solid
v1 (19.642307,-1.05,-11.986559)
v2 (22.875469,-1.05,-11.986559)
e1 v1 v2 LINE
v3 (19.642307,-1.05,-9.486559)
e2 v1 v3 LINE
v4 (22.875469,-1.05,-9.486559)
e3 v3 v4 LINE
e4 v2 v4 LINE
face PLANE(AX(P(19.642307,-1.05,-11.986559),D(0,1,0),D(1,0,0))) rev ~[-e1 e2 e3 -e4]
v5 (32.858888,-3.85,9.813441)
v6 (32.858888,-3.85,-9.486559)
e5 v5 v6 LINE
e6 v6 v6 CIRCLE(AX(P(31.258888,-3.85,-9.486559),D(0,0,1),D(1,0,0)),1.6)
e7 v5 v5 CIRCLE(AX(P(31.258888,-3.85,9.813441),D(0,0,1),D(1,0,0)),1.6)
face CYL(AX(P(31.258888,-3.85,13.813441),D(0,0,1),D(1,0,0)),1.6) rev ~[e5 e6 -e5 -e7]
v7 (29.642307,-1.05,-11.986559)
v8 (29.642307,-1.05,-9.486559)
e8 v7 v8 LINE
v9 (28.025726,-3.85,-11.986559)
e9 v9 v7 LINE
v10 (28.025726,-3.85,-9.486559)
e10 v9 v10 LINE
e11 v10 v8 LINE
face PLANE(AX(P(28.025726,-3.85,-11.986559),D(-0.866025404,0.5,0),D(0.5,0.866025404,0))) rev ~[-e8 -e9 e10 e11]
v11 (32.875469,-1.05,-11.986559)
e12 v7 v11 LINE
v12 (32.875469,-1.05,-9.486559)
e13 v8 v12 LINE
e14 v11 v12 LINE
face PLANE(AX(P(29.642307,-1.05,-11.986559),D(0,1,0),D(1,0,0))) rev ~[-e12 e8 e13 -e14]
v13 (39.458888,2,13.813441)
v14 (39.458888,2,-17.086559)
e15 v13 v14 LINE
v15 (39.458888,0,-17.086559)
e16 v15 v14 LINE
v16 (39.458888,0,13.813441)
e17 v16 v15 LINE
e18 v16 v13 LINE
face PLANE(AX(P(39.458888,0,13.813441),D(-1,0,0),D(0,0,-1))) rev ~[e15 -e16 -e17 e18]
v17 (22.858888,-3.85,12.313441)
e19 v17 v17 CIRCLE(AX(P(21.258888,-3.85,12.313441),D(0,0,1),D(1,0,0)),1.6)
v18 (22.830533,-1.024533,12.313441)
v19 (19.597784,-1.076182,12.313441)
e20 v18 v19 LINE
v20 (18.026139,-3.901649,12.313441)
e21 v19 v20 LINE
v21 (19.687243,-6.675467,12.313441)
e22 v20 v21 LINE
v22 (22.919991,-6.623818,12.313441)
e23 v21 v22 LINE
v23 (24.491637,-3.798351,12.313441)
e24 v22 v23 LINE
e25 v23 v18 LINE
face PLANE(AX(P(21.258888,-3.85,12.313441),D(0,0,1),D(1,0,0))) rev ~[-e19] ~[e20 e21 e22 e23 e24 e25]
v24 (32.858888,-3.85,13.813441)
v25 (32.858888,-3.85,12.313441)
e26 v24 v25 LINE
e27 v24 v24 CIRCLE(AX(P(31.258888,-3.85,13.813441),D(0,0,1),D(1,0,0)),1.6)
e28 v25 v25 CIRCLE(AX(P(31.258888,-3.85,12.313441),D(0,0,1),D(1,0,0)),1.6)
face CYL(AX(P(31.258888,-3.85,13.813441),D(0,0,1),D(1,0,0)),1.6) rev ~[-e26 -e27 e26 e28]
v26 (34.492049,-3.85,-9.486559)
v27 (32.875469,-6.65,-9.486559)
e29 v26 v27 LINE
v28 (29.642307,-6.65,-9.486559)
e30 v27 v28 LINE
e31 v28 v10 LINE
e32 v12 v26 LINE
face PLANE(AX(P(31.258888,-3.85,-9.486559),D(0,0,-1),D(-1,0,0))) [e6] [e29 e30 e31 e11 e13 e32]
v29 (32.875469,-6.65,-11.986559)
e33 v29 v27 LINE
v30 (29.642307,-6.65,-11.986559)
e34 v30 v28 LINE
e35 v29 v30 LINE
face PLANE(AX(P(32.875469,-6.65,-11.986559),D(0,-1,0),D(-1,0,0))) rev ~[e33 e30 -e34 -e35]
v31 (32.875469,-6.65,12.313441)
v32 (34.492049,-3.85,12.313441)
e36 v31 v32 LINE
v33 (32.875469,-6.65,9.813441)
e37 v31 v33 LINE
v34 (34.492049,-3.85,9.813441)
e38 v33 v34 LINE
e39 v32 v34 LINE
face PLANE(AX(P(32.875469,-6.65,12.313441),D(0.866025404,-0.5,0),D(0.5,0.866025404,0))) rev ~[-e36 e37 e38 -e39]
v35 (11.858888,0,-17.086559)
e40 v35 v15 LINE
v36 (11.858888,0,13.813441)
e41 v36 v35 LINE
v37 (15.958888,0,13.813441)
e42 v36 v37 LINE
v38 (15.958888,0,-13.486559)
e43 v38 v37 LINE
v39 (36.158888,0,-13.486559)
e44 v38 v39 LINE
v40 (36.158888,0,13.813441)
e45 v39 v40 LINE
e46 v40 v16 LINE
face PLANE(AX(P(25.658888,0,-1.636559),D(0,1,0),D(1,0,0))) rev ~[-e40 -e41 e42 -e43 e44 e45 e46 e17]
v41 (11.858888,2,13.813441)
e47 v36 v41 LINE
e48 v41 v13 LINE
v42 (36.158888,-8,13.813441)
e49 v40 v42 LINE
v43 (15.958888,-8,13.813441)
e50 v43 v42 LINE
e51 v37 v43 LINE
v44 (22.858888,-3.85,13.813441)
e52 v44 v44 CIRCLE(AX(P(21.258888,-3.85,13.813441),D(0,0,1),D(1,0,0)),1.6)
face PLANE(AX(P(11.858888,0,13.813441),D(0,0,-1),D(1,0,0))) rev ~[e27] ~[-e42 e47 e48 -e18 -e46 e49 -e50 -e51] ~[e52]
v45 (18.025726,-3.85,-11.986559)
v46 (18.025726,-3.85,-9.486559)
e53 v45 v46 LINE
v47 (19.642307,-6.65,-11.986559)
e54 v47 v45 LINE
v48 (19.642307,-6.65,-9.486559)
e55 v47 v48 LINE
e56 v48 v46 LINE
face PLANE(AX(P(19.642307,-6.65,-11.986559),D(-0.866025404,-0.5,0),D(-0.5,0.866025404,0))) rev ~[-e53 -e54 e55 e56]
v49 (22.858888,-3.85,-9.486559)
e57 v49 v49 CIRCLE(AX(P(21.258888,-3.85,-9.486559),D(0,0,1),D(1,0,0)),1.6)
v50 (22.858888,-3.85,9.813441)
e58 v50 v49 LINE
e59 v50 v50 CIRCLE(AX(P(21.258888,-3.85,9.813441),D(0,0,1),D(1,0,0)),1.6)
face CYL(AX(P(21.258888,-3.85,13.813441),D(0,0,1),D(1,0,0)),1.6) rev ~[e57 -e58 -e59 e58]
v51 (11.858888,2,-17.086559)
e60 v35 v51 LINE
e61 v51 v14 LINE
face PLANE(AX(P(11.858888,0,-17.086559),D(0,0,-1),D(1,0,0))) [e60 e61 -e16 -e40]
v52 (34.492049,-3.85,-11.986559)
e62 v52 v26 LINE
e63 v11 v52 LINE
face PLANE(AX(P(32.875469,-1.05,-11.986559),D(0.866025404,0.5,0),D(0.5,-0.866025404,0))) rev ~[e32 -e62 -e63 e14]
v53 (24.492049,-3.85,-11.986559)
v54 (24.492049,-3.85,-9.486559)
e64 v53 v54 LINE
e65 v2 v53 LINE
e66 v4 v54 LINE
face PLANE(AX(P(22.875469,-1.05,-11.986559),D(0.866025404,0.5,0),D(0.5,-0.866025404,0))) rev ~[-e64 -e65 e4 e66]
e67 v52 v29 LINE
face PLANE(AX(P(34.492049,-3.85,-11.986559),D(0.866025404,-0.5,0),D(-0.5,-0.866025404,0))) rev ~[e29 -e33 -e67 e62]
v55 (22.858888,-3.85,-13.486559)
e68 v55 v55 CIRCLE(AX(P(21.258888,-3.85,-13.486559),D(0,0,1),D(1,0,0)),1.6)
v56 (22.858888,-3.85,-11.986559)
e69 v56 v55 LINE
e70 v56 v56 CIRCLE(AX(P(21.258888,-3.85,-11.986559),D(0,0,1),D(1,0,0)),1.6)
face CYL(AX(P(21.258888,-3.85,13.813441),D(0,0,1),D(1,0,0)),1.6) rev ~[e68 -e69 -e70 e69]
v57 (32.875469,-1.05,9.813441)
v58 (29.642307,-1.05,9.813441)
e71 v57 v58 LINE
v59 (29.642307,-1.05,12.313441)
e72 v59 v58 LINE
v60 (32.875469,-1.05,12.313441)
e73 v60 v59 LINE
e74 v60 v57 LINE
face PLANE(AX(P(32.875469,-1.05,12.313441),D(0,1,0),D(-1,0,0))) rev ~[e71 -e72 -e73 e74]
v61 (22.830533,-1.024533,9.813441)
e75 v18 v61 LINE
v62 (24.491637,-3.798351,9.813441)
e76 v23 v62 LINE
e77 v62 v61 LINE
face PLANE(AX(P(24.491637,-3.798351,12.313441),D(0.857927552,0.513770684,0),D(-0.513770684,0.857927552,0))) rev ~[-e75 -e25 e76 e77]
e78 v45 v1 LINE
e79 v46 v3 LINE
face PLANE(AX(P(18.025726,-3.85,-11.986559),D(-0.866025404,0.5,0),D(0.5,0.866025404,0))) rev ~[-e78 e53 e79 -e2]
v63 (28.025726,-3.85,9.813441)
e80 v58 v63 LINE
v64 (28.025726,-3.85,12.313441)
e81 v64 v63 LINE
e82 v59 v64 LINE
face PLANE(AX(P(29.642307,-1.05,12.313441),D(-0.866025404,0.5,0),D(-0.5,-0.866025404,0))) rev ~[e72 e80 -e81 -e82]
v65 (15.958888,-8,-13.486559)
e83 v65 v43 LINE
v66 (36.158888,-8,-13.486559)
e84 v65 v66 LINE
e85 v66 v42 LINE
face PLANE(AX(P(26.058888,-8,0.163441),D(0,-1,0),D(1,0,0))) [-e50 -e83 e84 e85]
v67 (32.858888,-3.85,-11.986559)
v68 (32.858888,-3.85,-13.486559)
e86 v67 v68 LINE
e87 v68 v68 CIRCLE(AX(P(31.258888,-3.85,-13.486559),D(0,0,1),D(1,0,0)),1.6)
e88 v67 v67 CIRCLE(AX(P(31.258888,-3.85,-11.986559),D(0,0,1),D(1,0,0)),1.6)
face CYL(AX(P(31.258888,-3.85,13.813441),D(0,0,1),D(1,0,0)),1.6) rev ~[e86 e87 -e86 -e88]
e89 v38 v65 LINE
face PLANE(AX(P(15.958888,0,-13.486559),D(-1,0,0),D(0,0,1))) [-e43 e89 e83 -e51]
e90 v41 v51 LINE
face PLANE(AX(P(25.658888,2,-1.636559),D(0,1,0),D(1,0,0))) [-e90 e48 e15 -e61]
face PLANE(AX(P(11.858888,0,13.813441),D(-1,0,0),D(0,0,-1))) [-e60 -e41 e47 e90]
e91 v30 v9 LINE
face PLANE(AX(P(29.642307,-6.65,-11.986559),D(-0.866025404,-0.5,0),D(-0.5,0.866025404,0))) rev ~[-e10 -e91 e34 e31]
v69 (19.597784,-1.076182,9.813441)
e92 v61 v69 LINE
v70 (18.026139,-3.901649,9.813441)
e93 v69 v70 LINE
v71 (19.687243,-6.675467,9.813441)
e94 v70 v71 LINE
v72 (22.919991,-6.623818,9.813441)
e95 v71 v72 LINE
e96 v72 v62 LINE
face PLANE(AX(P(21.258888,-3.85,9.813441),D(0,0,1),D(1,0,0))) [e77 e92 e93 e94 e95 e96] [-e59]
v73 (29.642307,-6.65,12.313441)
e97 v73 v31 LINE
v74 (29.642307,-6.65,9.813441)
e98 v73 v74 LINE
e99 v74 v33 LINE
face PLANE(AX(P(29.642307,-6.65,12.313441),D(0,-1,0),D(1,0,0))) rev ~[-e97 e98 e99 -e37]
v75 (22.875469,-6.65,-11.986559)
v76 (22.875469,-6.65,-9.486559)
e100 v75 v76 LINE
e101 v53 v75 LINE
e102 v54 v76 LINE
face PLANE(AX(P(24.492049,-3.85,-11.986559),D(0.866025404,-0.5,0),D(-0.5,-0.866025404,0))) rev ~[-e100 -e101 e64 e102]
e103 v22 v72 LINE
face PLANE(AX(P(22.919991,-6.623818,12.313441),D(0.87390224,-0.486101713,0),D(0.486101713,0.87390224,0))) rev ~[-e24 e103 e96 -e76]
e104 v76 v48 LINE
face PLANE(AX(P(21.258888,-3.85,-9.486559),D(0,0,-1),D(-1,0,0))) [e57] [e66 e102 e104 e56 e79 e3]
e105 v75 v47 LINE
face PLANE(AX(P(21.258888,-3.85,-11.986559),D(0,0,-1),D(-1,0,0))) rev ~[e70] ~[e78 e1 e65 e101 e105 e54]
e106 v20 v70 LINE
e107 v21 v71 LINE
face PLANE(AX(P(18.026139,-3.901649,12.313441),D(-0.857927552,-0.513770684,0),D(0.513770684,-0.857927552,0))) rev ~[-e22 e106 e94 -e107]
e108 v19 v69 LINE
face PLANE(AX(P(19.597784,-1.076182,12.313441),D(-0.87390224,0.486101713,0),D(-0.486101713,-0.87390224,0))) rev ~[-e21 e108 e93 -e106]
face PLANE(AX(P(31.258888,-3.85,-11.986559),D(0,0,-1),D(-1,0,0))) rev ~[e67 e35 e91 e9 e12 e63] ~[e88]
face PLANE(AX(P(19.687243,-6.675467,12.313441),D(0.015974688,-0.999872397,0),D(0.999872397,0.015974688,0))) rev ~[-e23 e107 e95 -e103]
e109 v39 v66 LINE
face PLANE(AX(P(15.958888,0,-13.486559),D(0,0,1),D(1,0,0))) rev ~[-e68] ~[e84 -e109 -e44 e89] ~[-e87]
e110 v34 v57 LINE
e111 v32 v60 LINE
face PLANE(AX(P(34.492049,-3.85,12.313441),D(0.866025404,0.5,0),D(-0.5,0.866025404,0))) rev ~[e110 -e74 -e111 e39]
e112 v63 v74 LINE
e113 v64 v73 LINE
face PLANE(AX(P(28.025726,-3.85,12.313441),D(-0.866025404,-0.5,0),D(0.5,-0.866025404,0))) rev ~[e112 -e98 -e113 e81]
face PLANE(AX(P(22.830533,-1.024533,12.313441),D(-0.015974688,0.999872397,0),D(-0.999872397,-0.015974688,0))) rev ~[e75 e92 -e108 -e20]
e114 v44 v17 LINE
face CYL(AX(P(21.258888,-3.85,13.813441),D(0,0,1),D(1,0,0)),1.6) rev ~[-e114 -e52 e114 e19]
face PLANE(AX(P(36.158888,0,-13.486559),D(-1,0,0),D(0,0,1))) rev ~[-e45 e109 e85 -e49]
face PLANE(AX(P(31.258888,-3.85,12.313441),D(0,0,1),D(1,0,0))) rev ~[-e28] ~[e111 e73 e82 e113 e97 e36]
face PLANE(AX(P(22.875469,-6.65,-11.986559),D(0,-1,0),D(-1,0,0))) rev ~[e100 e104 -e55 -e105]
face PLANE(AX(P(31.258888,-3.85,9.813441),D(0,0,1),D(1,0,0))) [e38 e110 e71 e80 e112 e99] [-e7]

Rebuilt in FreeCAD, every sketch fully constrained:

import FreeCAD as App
import Part
import Sketcher
from FreeCAD import Vector
Q = App.Units.Quantity


def add_polygon(sketch, points):
    """Adds a closed chain of lines whose ends are joined by coincident constraints."""
    first, n = sketch.GeometryCount, len(points)
    for a, b in zip(points, points[1:] + points[:1]):
        sketch.addGeometry(Part.LineSegment(App.Vector(*a, 0), App.Vector(*b, 0)), False)
    for i in range(n):
        sketch.addConstraint(Sketcher.Constraint("Coincident", first + i, 2, first + (i + 1) % n, 1))

doc = App.newDocument("Part")
body = doc.addObject("PartDesign::Body", "Body")

sketch1 = body.newObject("Sketcher::SketchObject", "Sketch")
sketch1.AttachmentSupport = (doc.getObject("XZ_Plane"), [""])
sketch1.MapMode = "FlatFace"
add_polygon(sketch1, [(11.858888, -17.086559), (11.858888, 13.813441), (39.458888, 13.813441), (39.458888, -17.086559)])
sketch1.addConstraint([
    Sketcher.Constraint("Vertical", 0),
    Sketcher.Constraint("Horizontal", 1),
    Sketcher.Constraint("Vertical", 2),
    Sketcher.Constraint("Horizontal", 3),
    Sketcher.Constraint("DistanceX", 1, 1, 1, 2, Q("27.6 mm")),
    Sketcher.Constraint("DistanceY", 0, 1, 0, 2, Q("30.9 mm")),
    Sketcher.Constraint("DistanceY", -1, 1, 0, 2, Q("13.813441 mm")),
    Sketcher.Constraint("DistanceX", -1, 1, 0, 2, Q("11.858888 mm")),
])
pad1 = body.newObject("PartDesign::Pad", "Pad")
pad1.Profile = sketch1
pad1.Length = 2
pad1.Reversed = True

sketch2 = body.newObject("Sketcher::SketchObject", "Sketch001")
sketch2.AttachmentSupport = (doc.getObject("XZ_Plane"), [""])
sketch2.MapMode = "FlatFace"
add_polygon(sketch2, [(15.958888, 13.813441), (15.958888, -13.486559), (36.158888, -13.486559), (36.158888, 13.813441)])
sketch2.addConstraint([
    Sketcher.Constraint("Vertical", 0),
    Sketcher.Constraint("Horizontal", 1),
    Sketcher.Constraint("Vertical", 2),
    Sketcher.Constraint("Horizontal", 3),
    Sketcher.Constraint("DistanceX", 1, 1, 1, 2, Q("20.2 mm")),
    Sketcher.Constraint("DistanceY", 0, 2, 0, 1, Q("27.3 mm")),
    Sketcher.Constraint("DistanceY", 0, 2, -1, 1, Q("13.486559 mm")),
    Sketcher.Constraint("DistanceX", -1, 1, 0, 2, Q("15.958888 mm")),
])
pad2 = body.newObject("PartDesign::Pad", "Pad001")
pad2.Profile = sketch2
pad2.Length = 8

sketch3 = body.newObject("Sketcher::SketchObject", "Sketch002")
sketch3.AttachmentSupport = (doc.getObject("XY_Plane"), [""])
sketch3.MapMode = "FlatFace"
sketch3.AttachmentOffset = App.Placement(Vector(0, 0, 13.813441), App.Rotation())
sketch3.addGeometry([
    Part.Circle(Vector(21.258888, -3.85, 0), Vector(0, 0, 1), 1.6),
    Part.Circle(Vector(31.258888, -3.85, 0), Vector(0, 0, 1), 1.6),
], False)
sketch3.addConstraint([
    Sketcher.Constraint("Equal", 0, 1),
    Sketcher.Constraint("Horizontal", 0, 3, 1, 3),
    Sketcher.Constraint("Diameter", 0, Q("3.2 mm")),
    Sketcher.Constraint("DistanceX", 0, 3, 1, 3, Q("10 mm")),
    Sketcher.Constraint("DistanceY", 0, 3, -1, 1, Q("3.85 mm")),
    Sketcher.Constraint("DistanceX", -1, 1, 0, 3, Q("21.258888 mm")),
])
pocket1 = body.newObject("PartDesign::Pocket", "Pocket")
pocket1.Profile = sketch3
pocket1.Length = 32

sketch4 = body.newObject("Sketcher::SketchObject", "Sketch003")
sketch4.AttachmentSupport = (doc.getObject("XY_Plane"), [""])
sketch4.MapMode = "FlatFace"
sketch4.AttachmentOffset = App.Placement(Vector(0, 0, 12.313441), App.Rotation())
add_polygon(sketch4, [(32.875469, -6.65), (34.492049, -3.85), (32.875469, -1.05), (29.642307, -1.05), (28.025726, -3.85), (29.642307, -6.65)])
add_polygon(sketch4, [(22.919991, -6.623818), (24.491637, -3.798351), (22.830533, -1.024533), (19.597784, -1.076182), (18.026139, -3.901649), (19.687243, -6.675467)])
sketch4.addConstraint([
    Sketcher.Constraint("Horizontal", 2),
    Sketcher.Constraint("Horizontal", 5),
    Sketcher.Constraint("Parallel", 0, 3),
    Sketcher.Constraint("Parallel", 1, 4),
    Sketcher.Constraint("Parallel", 6, 9),
    Sketcher.Constraint("Parallel", 7, 10),
    Sketcher.Constraint("Parallel", 8, 11),
    Sketcher.Constraint("Horizontal", 0, 2, 3, 2),
    Sketcher.Constraint("Vertical", 2, 2, 4, 2),
    Sketcher.Constraint("Vertical", 1, 2, 5, 2),
    Sketcher.Constraint("Equal", 4, 6),
    Sketcher.Constraint("Equal", 6, 7),
    Sketcher.Constraint("Equal", 7, 8),
    Sketcher.Constraint("Equal", 8, 9),
    Sketcher.Constraint("Angle", 0, Q("60 deg")),
    Sketcher.Constraint("DistanceY", 0, 2, 1, 2, Q("2.8 mm")),
    Sketcher.Constraint("DistanceY", 0, 2, -1, 1, Q("3.85 mm")),
    Sketcher.Constraint("DistanceX", 2, 2, 2, 1, Q("3.233162 mm")),
    Sketcher.Constraint("DistanceX", -1, 1, 0, 2, Q("34.492049 mm")),
    Sketcher.Constraint("DistanceY", 6, 2, -1, 1, Q("3.798351 mm")),
    Sketcher.Constraint("DistanceY", 8, 2, -1, 1, Q("1.076182 mm")),
    Sketcher.Constraint("DistanceX", -1, 1, 9, 2, Q("18.026139 mm")),
    Sketcher.Constraint("DistanceY", 9, 2, -1, 1, Q("3.901649 mm")),
    Sketcher.Constraint("DistanceX", -1, 1, 11, 2, Q("22.919991 mm")),
])
pocket2 = body.newObject("PartDesign::Pocket", "Pocket001")
pocket2.Profile = sketch4
pocket2.Length = 2.5

sketch5 = body.newObject("Sketcher::SketchObject", "Sketch004")
sketch5.AttachmentSupport = (doc.getObject("XY_Plane"), [""])
sketch5.MapMode = "FlatFace"
sketch5.AttachmentOffset = App.Placement(Vector(0, 0, -11.986559), App.Rotation())
add_polygon(sketch5, [(29.642307, -6.65), (28.025726, -3.85), (29.642307, -1.05), (32.875469, -1.05), (34.492049, -3.85), (32.875469, -6.65)])
add_polygon(sketch5, [(19.642307, -6.65), (18.025726, -3.85), (19.642307, -1.05), (22.875469, -1.05), (24.492049, -3.85), (22.875469, -6.65)])
sketch5.addConstraint([
    Sketcher.Constraint("Horizontal", 2),
    Sketcher.Constraint("Horizontal", 5),
    Sketcher.Constraint("Horizontal", 8),
    Sketcher.Constraint("Horizontal", 11),
    Sketcher.Constraint("Parallel", 0, 3),
    Sketcher.Constraint("Parallel", 1, 4),
    Sketcher.Constraint("Parallel", 3, 6),
    Sketcher.Constraint("Parallel", 4, 7),
    Sketcher.Constraint("Parallel", 6, 9),
    Sketcher.Constraint("Parallel", 7, 10),
    Sketcher.Constraint("Horizontal", 0, 2, 3, 2),
    Sketcher.Constraint("Horizontal", 3, 2, 6, 2),
    Sketcher.Constraint("Horizontal", 2, 2, 7, 2),
    Sketcher.Constraint("Horizontal", 6, 2, 9, 2),
    Sketcher.Constraint("Horizontal", 5, 2, 10, 2),
    Sketcher.Constraint("Vertical", 2, 2, 4, 2),
    Sketcher.Constraint("Vertical", 1, 2, 5, 2),
    Sketcher.Constraint("Equal", 5, 8),
    Sketcher.Constraint("Angle", 0, Q("120 deg")),
    Sketcher.Constraint("DistanceX", 6, 2, 0, 2, Q("10 mm")),
    Sketcher.Constraint("DistanceY", 0, 2, 1, 2, Q("2.8 mm")),
    Sketcher.Constraint("DistanceY", 0, 2, -1, 1, Q("3.85 mm")),
    Sketcher.Constraint("DistanceX", 2, 1, 2, 2, Q("3.233162 mm")),
    Sketcher.Constraint("DistanceX", -1, 1, 2, 2, Q("32.875469 mm")),
])
pocket3 = body.newObject("PartDesign::Pocket", "Pocket002")
pocket3.Profile = sketch5
pocket3.Length = 2.5
pocket3.Reversed = True

doc.recompute()
